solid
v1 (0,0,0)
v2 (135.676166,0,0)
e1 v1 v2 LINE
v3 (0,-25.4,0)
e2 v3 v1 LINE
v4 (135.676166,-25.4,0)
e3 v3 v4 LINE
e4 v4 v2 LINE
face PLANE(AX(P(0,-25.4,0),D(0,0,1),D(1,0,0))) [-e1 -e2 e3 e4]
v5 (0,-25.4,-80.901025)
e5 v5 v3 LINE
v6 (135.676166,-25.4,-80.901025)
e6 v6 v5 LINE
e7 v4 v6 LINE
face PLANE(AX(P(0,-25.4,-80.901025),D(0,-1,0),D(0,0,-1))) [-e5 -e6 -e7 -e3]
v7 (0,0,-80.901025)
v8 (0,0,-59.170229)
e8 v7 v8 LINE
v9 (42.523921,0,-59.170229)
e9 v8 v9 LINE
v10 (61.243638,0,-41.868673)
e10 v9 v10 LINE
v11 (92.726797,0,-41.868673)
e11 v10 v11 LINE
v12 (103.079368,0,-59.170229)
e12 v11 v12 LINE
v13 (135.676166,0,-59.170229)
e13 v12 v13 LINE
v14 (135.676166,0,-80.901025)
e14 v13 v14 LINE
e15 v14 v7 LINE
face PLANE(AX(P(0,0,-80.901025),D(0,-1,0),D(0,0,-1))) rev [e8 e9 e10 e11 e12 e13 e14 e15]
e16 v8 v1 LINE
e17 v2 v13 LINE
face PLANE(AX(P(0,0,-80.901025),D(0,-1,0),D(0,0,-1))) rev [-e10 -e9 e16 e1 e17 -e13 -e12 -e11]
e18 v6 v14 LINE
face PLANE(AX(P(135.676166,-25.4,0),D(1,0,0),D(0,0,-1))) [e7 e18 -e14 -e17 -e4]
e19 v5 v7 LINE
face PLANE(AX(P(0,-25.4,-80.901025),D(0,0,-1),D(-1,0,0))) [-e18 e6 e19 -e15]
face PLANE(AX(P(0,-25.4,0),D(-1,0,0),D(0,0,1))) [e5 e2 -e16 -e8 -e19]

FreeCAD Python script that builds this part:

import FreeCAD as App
import Part
import Sketcher

V = App.Vector
Q = App.Units.Quantity


def add_polygon(sketch, points):
    """Adds a closed chain of lines whose ends are joined by coincident constraints."""
    first, n = sketch.GeometryCount, len(points)
    for a, b in zip(points, points[1:] + points[:1]):
        sketch.addGeometry(Part.LineSegment(App.Vector(*a, 0), App.Vector(*b, 0)), False)
    for i in range(n):
        sketch.addConstraint(Sketcher.Constraint("Coincident", first + i, 2, first + (i + 1) % n, 1))

doc = App.newDocument("Part")
body = doc.addObject("PartDesign::Body", "Body")

sketch1 = body.newObject("Sketcher::SketchObject", "Sketch")
sketch1.AttachmentSupport = (doc.getObject("XZ_Plane"), [""])
sketch1.MapMode = "FlatFace"
add_polygon(sketch1, [(0, -81), (0, 0), (136, 0), (136, -81)])
sketch1.addConstraint(Sketcher.Constraint("Vertical", 0))
sketch1.addConstraint(Sketcher.Constraint("Horizontal", 1))
sketch1.addConstraint(Sketcher.Constraint("Vertical", 2))
sketch1.addConstraint(Sketcher.Constraint("Horizontal", 3))
sketch1.addConstraint(Sketcher.Constraint("Coincident", 0, 2, -1, 1))
sketch1.addConstraint(Sketcher.Constraint("DistanceX", 1, 1, 1, 2, 135.676166))
sketch1.addConstraint(Sketcher.Constraint("DistanceY", 0, 1, 0, 2, 80.901025))
pad1 = body.newObject("PartDesign::Pad", "Pad")
pad1.Profile = sketch1
pad1.Length = Q("1 in")

doc.recompute()
